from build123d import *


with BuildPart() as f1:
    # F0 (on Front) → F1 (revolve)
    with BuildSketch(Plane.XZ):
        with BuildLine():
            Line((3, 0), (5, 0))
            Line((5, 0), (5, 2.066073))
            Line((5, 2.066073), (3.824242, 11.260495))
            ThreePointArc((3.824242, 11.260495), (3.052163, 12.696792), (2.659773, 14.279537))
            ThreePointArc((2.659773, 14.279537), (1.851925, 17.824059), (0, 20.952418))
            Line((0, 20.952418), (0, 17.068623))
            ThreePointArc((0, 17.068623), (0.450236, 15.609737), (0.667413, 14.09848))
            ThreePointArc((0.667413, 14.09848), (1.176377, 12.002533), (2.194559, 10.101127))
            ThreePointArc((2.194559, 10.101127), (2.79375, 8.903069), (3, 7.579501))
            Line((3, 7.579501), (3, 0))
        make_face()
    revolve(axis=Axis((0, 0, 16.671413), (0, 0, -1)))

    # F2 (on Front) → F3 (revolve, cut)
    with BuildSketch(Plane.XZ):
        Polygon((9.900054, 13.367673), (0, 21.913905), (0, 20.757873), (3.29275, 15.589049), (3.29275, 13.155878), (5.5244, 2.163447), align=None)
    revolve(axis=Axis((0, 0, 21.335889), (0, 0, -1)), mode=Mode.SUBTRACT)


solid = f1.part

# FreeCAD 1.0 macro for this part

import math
import FreeCAD as App
import Part
import Sketcher

V = App.Vector

doc = App.newDocument("Part")
body = doc.addObject("PartDesign::Body", "Body")

sketch1 = body.newObject("Sketcher::SketchObject", "Sketch")
sketch1.AttachmentSupport = (doc.getObject("XZ_Plane"), [""])
sketch1.MapMode = "FlatFace"
sketch1.addGeometry(Part.LineSegment(V(3, 0, 0), V(5, 0, 0)), False)
sketch1.addGeometry(Part.LineSegment(V(5, 0, 0), V(5, 2.1, 0)), False)
sketch1.addGeometry(Part.LineSegment(V(5, 2.1, 0), V(3.8, 11.3, 0)), False)
sketch1.addGeometry(Part.ArcOfCircle(Part.Circle(V(9.1, 15, 0), V(0, 0, 1), 6.5), math.radians(-173), math.radians(-145)), False)
sketch1.addGeometry(Part.ArcOfCircle(Part.Circle(V(-9.1, 13.5, 0), V(0, 0, 1), 11.8), math.radians(4), math.radians(40)), False)
sketch1.addGeometry(Part.LineSegment(V(0, 21, 0), V(0, 17.1, 0)), False)
sketch1.addGeometry(Part.ArcOfCircle(Part.Circle(V(-9.1, 13.5, 0), V(0, 0, 1), 9.8), math.radians(3.69), math.radians(21.64)), False)
sketch1.addGeometry(Part.ArcOfCircle(Part.Circle(V(9.1, 15, 0), V(0, 0, 1), 8.5), math.radians(-174), math.radians(-145)), False)
sketch1.addGeometry(Part.ArcOfCircle(Part.Circle(V(-1.4, 7.6, 0), V(0, 0, 1), 4.4), math.radians(0), math.radians(35)), False)
sketch1.addGeometry(Part.LineSegment(V(3, 7.6, 0), V(3, 0, 0)), False)
sketch1.addConstraint(Sketcher.Constraint("Coincident", 0, 2, 1, 1))
sketch1.addConstraint(Sketcher.Constraint("Coincident", 1, 2, 2, 1))
sketch1.addConstraint(Sketcher.Constraint("Coincident", 2, 2, 3, 2))
sketch1.addConstraint(Sketcher.Constraint("Coincident", 3, 1, 4, 1))
sketch1.addConstraint(Sketcher.Constraint("Coincident", 4, 2, 5, 1))
sketch1.addConstraint(Sketcher.Constraint("Coincident", 5, 2, 6, 2))
sketch1.addConstraint(Sketcher.Constraint("Coincident", 6, 1, 7, 1))
sketch1.addConstraint(Sketcher.Constraint("Tangent", 7, 2, 8, 2))
sketch1.addConstraint(Sketcher.Constraint("Tangent", 8, 1, 9, 1))
sketch1.addConstraint(Sketcher.Constraint("Coincident", 9, 2, 0, 1))
sketch1.addConstraint(Sketcher.Constraint("Horizontal", 0))
sketch1.addConstraint(Sketcher.Constraint("Vertical", 1))
sketch1.addConstraint(Sketcher.Constraint("Vertical", 5))
sketch1.addConstraint(Sketcher.Constraint("Vertical", 9))
sketch1.addConstraint(Sketcher.Constraint("PointOnObject", 0, 2, -1))
sketch1.addConstraint(Sketcher.Constraint("PointOnObject", 4, 2, -2))
sketch1.addConstraint(Sketcher.Constraint("DistanceX", 0, 1, 0, 2, 2.0))
sketch1.addConstraint(Sketcher.Constraint("DistanceX", -1, 1, 0, 2, 5.0))
sketch1.addConstraint(Sketcher.Constraint("Radius", 4, 11.758642))
sketch1.addConstraint(Sketcher.Constraint("DistanceY", 9, 2, 9, 1, 7.579501))
sketch1.addConstraint(Sketcher.Constraint("Radius", 3, 6.534055))
sketch1.addConstraint(Sketcher.Constraint("Radius", 6, 9.758677))
sketch1.addConstraint(Sketcher.Constraint("Radius", 7, 8.534067))
sketch1.addConstraint(Sketcher.Constraint("Radius", 8, 4.350004))
sketch1.addConstraint(Sketcher.Constraint("DistanceX", 3, 1, 7, 3, 6.488699))
sketch1.addConstraint(Sketcher.Constraint("DistanceY", 1, 1, 1, 2, 2.066073))
sketch1.addConstraint(Sketcher.Constraint("DistanceY", 5, 2, 5, 1, 3.883795))
sketch1.addConstraint(Sketcher.Constraint("DistanceX", -1, 1, 3, 3, 9.14846))
sketch1.addConstraint(Sketcher.Constraint("DistanceX", 6, 3, -1, 1, 9.071021))
sketch1.addConstraint(Sketcher.Constraint("DistanceY", -1, 1, 6, 3, 13.47024))
sketch1.addConstraint(Sketcher.Constraint("DistanceX", -1, 1, 2, 2, 3.824242))
sketch1.addConstraint(Sketcher.Constraint("DistanceY", -1, 1, 6, 1, 14.09848))
sketch1.addConstraint(Sketcher.Constraint("DistanceX", 4, 3, 7, 3, 18.219458))
revolution = body.newObject("PartDesign::Revolution", "Revolution")
revolution.Profile = sketch1
revolution.ReferenceAxis = (sketch1, ["V_Axis"])
revolution.Angle = 360

sketch2 = body.newObject("Sketcher::SketchObject", "Sketch001")
sketch2.AttachmentSupport = (doc.getObject("XZ_Plane"), [""])
sketch2.MapMode = "FlatFace"
sketch2.addGeometry(Part.LineSegment(V(9.9, 13.4, 0), V(0, 21.9, 0)), False)
sketch2.addGeometry(Part.LineSegment(V(0, 21.9, 0), V(0, 20.8, 0)), False)
sketch2.addGeometry(Part.LineSegment(V(0, 20.8, 0), V(3.3, 15.6, 0)), False)
sketch2.addGeometry(Part.LineSegment(V(3.3, 15.6, 0), V(3.3, 13.2, 0)), False)
sketch2.addGeometry(Part.LineSegment(V(3.3, 13.2, 0), V(5.5, 2.2, 0)), False)
sketch2.addGeometry(Part.LineSegment(V(5.5, 2.2, 0), V(9.9, 13.4, 0)), False)
sketch2.addConstraint(Sketcher.Constraint("Coincident", 0, 2, 1, 1))
sketch2.addConstraint(Sketcher.Constraint("Coincident", 1, 2, 2, 1))
sketch2.addConstraint(Sketcher.Constraint("Coincident", 2, 2, 3, 1))
sketch2.addConstraint(Sketcher.Constraint("Coincident", 3, 2, 4, 1))
sketch2.addConstraint(Sketcher.Constraint("Coincident", 4, 2, 5, 1))
sketch2.addConstraint(Sketcher.Constraint("Coincident", 5, 2, 0, 1))
sketch2.addConstraint(Sketcher.Constraint("Vertical", 1))
sketch2.addConstraint(Sketcher.Constraint("Vertical", 3))
sketch2.addConstraint(Sketcher.Constraint("PointOnObject", 0, 2, -2))
sketch2.addConstraint(Sketcher.Constraint("DistanceY", 1, 2, 1, 1, 1.156032))
sketch2.addConstraint(Sketcher.Constraint("DistanceY", 3, 2, 3, 1, 2.433171))
sketch2.addConstraint(Sketcher.Constraint("DistanceX", -1, 1, 4, 2, 5.5244))
sketch2.addConstraint(Sketcher.Constraint("DistanceY", 5, 2, 1, 2, 7.3902))
sketch2.addConstraint(Sketcher.Constraint("DistanceX", -1, 1, 2, 2, 3.29275))
sketch2.addConstraint(Sketcher.Constraint("DistanceY", -1, 1, 2, 2, 15.589049))
sketch2.addConstraint(Sketcher.Constraint("DistanceY", 4, 2, 3, 2, 10.992431))
sketch2.addConstraint(Sketcher.Constraint("Distance", 0, 13.078576))
sketch2.addConstraint(Sketcher.Constraint("Distance", 2, 6.128535))
groove = body.newObject("PartDesign::Groove", "Groove")
groove.Profile = sketch2
groove.ReferenceAxis = (sketch2, ["V_Axis"])
groove.Angle = 360

doc.recompute()
